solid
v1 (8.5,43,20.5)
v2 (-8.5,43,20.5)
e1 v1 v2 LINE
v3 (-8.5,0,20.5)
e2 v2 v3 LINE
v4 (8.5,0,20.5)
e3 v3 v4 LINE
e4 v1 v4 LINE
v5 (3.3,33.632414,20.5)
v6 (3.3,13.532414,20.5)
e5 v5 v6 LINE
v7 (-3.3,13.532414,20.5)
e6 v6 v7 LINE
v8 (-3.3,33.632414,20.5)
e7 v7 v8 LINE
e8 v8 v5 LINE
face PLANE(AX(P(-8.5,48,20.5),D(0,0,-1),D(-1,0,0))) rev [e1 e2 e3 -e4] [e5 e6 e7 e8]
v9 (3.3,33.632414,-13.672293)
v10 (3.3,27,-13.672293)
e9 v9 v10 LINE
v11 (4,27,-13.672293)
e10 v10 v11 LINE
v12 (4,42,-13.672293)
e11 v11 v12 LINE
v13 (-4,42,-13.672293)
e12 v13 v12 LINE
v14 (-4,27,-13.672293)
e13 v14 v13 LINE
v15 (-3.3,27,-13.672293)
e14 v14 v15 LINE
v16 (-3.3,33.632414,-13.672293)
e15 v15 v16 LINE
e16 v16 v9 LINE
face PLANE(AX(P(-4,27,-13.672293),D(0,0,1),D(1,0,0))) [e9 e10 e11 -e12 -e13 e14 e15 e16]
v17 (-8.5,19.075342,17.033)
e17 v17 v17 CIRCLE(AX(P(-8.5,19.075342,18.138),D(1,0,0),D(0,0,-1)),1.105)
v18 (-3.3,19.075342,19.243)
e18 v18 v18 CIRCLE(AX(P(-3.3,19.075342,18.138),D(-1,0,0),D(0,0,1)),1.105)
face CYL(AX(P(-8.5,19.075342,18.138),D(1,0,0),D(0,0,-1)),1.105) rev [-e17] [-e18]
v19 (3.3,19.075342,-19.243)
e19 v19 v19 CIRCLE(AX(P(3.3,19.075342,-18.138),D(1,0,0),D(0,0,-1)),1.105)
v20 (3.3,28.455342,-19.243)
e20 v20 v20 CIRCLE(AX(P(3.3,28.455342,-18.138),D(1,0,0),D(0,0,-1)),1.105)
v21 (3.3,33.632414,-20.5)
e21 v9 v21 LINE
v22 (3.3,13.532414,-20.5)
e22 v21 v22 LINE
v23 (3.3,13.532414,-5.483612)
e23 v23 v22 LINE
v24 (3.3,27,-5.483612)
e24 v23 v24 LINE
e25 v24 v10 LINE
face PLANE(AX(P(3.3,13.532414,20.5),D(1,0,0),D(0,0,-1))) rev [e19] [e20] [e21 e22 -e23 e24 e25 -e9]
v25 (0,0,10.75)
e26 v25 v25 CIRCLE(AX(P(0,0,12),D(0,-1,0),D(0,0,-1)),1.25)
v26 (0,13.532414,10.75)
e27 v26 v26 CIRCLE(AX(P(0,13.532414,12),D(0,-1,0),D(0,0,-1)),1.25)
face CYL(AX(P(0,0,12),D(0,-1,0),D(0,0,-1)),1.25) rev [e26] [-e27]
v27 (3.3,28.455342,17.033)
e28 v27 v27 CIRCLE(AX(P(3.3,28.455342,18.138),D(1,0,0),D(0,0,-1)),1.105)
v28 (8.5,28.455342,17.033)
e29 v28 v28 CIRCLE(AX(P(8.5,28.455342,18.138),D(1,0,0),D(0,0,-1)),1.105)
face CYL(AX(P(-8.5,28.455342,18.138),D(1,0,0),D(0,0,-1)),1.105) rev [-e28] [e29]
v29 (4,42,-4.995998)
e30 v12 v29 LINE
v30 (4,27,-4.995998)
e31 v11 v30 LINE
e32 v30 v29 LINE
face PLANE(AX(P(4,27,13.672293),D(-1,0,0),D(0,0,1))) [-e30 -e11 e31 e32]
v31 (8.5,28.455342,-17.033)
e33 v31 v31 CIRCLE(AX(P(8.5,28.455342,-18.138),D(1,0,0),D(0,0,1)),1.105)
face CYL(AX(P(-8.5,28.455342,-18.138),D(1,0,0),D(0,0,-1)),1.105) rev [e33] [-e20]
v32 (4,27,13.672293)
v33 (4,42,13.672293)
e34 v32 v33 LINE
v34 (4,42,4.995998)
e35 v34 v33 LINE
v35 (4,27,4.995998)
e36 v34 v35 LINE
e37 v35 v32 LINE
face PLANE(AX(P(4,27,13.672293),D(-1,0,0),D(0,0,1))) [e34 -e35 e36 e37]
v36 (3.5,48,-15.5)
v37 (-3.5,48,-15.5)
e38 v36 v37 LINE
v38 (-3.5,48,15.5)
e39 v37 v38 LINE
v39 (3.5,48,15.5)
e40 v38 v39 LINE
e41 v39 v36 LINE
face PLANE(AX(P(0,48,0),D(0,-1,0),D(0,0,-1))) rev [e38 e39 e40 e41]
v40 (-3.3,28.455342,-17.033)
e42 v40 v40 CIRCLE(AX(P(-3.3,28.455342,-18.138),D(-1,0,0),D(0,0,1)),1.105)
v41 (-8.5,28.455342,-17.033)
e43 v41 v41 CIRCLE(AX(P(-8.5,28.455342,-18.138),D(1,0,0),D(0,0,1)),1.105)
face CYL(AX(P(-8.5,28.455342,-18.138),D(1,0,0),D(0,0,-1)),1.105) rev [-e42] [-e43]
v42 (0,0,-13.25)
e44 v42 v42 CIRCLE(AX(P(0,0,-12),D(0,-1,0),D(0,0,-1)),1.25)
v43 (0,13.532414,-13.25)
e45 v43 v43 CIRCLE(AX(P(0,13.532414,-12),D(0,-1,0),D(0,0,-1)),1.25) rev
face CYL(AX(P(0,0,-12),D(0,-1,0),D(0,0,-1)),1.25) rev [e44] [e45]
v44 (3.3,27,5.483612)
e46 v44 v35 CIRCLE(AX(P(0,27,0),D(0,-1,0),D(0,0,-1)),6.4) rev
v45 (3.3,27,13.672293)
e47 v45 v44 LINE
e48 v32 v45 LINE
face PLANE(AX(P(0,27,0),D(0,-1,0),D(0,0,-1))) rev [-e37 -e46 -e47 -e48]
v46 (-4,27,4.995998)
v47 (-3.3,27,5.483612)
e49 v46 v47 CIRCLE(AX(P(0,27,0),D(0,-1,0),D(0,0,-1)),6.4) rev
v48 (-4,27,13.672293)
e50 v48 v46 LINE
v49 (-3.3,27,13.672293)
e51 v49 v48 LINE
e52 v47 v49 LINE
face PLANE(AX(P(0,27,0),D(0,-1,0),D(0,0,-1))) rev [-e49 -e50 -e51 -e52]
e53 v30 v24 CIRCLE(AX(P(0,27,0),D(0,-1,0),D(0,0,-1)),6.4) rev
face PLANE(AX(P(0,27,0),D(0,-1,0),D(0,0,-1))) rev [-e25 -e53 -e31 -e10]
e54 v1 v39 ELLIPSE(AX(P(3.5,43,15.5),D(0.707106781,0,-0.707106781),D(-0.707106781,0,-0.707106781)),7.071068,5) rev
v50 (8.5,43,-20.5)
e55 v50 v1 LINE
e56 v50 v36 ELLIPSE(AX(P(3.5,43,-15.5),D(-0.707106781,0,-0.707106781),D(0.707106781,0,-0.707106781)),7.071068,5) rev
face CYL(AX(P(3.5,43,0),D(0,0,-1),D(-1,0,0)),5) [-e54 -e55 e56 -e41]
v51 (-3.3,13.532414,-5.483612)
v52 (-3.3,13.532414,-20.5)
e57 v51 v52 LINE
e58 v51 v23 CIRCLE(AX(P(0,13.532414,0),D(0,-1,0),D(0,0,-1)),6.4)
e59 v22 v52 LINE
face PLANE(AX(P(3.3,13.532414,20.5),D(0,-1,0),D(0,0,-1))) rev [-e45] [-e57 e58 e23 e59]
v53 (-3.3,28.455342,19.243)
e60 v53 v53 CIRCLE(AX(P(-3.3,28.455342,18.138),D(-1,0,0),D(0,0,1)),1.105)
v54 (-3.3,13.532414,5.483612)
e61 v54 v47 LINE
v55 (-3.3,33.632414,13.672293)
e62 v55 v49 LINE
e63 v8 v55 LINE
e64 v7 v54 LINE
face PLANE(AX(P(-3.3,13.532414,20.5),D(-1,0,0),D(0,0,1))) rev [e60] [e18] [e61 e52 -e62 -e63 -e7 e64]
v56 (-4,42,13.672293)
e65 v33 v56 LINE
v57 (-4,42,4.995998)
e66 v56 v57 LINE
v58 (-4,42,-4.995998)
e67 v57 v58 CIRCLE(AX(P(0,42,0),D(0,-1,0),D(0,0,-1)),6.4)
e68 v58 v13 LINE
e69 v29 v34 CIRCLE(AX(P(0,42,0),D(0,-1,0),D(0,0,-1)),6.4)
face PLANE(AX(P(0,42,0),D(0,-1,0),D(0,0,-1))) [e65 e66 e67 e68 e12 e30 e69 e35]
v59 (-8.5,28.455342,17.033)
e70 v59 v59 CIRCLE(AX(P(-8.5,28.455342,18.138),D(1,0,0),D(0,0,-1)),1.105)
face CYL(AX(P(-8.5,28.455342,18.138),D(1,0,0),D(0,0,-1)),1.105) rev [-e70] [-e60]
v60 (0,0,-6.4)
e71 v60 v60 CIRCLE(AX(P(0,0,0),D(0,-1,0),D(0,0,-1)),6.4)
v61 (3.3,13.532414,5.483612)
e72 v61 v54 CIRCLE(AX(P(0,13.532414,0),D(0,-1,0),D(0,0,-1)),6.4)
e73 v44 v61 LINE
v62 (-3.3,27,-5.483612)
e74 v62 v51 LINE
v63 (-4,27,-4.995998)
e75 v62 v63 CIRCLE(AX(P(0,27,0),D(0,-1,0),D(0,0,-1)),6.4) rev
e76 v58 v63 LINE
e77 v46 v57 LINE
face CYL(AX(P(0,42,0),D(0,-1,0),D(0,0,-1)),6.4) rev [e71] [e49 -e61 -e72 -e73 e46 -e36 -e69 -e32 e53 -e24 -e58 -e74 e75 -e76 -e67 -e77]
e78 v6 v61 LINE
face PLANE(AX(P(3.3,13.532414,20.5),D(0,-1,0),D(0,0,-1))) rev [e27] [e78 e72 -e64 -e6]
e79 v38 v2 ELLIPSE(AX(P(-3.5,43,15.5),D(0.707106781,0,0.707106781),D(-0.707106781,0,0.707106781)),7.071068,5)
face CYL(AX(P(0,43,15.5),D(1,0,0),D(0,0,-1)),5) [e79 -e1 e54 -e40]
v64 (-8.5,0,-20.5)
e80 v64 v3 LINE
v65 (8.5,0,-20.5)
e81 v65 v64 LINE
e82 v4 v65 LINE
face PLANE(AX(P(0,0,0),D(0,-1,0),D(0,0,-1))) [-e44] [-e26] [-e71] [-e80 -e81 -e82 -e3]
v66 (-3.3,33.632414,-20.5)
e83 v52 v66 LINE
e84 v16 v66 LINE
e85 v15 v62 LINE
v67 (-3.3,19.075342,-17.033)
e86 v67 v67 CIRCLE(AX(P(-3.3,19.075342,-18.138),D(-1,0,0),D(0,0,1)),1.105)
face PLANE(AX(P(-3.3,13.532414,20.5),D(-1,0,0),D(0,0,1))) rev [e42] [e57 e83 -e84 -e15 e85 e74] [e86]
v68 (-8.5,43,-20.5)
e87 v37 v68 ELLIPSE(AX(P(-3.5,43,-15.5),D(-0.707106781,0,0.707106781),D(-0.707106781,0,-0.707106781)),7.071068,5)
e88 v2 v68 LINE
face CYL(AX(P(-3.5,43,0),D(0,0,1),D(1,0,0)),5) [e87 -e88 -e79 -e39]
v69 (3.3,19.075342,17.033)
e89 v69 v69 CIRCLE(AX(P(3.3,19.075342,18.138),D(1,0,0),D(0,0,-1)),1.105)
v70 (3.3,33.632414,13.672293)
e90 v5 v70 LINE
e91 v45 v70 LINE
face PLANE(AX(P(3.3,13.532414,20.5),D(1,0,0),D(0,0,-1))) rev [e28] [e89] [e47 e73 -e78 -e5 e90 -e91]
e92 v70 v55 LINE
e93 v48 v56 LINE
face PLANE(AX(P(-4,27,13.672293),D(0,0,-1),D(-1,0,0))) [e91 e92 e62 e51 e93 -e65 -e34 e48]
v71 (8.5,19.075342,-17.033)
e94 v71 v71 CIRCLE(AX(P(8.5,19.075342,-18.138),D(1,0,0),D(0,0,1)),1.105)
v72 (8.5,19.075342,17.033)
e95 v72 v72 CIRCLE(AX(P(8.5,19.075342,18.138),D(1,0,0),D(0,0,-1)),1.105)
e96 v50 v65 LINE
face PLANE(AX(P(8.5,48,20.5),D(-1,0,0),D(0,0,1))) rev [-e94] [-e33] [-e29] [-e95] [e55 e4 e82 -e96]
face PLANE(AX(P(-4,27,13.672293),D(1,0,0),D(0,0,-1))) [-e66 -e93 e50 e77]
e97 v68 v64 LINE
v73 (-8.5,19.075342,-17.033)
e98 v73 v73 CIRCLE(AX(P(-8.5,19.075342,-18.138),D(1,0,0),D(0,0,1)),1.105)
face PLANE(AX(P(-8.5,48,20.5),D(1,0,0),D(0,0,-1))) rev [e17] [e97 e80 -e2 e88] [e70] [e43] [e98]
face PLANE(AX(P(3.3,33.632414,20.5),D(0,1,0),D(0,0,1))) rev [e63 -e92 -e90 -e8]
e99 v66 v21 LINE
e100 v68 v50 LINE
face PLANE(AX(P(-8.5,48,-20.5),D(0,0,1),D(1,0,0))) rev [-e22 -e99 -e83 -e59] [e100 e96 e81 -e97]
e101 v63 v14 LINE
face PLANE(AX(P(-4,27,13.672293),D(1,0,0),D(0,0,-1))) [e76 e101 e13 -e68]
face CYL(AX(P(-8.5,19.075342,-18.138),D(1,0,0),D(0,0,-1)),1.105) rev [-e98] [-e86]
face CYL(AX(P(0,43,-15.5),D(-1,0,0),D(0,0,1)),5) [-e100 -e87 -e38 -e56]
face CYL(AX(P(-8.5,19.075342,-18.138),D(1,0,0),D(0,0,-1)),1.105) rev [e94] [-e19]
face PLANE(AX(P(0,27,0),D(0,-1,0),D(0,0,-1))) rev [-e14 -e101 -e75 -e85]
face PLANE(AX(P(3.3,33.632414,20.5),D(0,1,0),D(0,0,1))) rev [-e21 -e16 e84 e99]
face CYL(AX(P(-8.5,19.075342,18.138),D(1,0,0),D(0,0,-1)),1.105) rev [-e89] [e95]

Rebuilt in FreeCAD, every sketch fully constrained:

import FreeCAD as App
import Part
import Sketcher
from FreeCAD import Vector


def edges_at(feature, points):
    """Names of the edges that pass closest to the given points."""
    edges = feature.Shape.Edges
    near = lambda p: min(range(len(edges)), key=lambda i: edges[i].distToShape(Part.Vertex(*p))[0])
    return sorted({f"Edge{near(p) + 1}" for p in points})

doc = App.newDocument("Part")
params = doc.addObject("Spreadsheet::Sheet", "Params")
for row, (alias, value) in enumerate([
    ("sketch1_width", "17 mm"),
    ("sketch1_height", "41 mm"),
    ("pad1_length", "48 mm"),
    ("sketch2_width", "6.6 mm"),
    ("sketch2_height", "20.1 mm"),
    ("sketch3_diameter", "2.21 mm"),
    ("sketch4_diameter", "12.8 mm"),
    ("pocket3_length", "42 mm"),
    ("fillet_radius", "5 mm"),
    ("sketch5_width", "8 mm"),
    ("pocket4_length", "15 mm"),
    ("sketch6_diameter", "2.5 mm"),
    ("sketch7_diameter", "2.5 mm"),
], start=1):
    params.set(f"A{row}", alias)
    params.set(f"B{row}", "=" + value)
    params.setAlias(f"B{row}", alias)

body = doc.addObject("PartDesign::Body", "Body")

# Sketch on XZ plane
sketch1 = body.newObject("Sketcher::SketchObject", "Sketch")
sketch1.AttachmentSupport = (doc.getObject("XZ_Plane"), [""])
sketch1.MapMode = "FlatFace"
sketch1.addGeometry(Part.LineSegment(Vector(-8, -20, 0), Vector(-8, 20, 0)), False)
sketch1.addGeometry(Part.LineSegment(Vector(-8, 20, 0), Vector(8, 20, 0)), False)
sketch1.addGeometry(Part.LineSegment(Vector(8, 20, 0), Vector(8, -20, 0)), False)
sketch1.addGeometry(Part.LineSegment(Vector(8, -20, 0), Vector(-8, -20, 0)), False)
sketch1.addConstraint(Sketcher.Constraint("Coincident", 0, 2, 1, 1))
sketch1.addConstraint(Sketcher.Constraint("Coincident", 1, 2, 2, 1))
sketch1.addConstraint(Sketcher.Constraint("Coincident", 2, 2, 3, 1))
sketch1.addConstraint(Sketcher.Constraint("Coincident", 3, 2, 0, 1))
sketch1.addConstraint(Sketcher.Constraint("Vertical", 0))
sketch1.addConstraint(Sketcher.Constraint("Horizontal", 1))
sketch1.addConstraint(Sketcher.Constraint("Vertical", 2))
sketch1.addConstraint(Sketcher.Constraint("Horizontal", 3))
sketch1.addConstraint(Sketcher.Constraint("Symmetric", 0, 2, 2, 2, -1, 1))
sketch1.addConstraint(Sketcher.Constraint("DistanceX", 1, 1, 1, 2, 17.0))
sketch1.addConstraint(Sketcher.Constraint("DistanceY", 0, 1, 0, 2, 41.0))
sketch1.setExpression("Constraints[9]", "Params.sketch1_width")
sketch1.setExpression("Constraints[10]", "Params.sketch1_height")
pad1 = body.newObject("PartDesign::Pad", "Pad")
pad1.Profile = sketch1
pad1.setExpression("Length", "Params.pad1_length")
pad1.Reversed = True

# Sketch on XY plane
sketch2 = body.newObject("Sketcher::SketchObject", "Sketch001")
sketch2.AttachmentSupport = (doc.getObject("XY_Plane"), [""])
sketch2.MapMode = "FlatFace"
sketch2.AttachmentOffset = App.Placement(Vector(0, 0, -20.5), App.Rotation())
sketch2.addGeometry(Part.LineSegment(Vector(3, 34, 0), Vector(3, 14, 0)), False)
sketch2.addGeometry(Part.LineSegment(Vector(3, 14, 0), Vector(-3, 14, 0)), False)
sketch2.addGeometry(Part.LineSegment(Vector(-3, 14, 0), Vector(-3, 34, 0)), False)
sketch2.addGeometry(Part.LineSegment(Vector(-3, 34, 0), Vector(3, 34, 0)), False)
sketch2.addConstraint(Sketcher.Constraint("Coincident", 0, 2, 1, 1))
sketch2.addConstraint(Sketcher.Constraint("Coincident", 1, 2, 2, 1))
sketch2.addConstraint(Sketcher.Constraint("Coincident", 2, 2, 3, 1))
sketch2.addConstraint(Sketcher.Constraint("Coincident", 3, 2, 0, 1))
sketch2.addConstraint(Sketcher.Constraint("Vertical", 0))
sketch2.addConstraint(Sketcher.Constraint("Horizontal", 1))
sketch2.addConstraint(Sketcher.Constraint("Vertical", 2))
sketch2.addConstraint(Sketcher.Constraint("Horizontal", 3))
sketch2.addConstraint(Sketcher.Constraint("DistanceX", 1, 2, 1, 1, 6.6))
sketch2.addConstraint(Sketcher.Constraint("DistanceY", 0, 2, 0, 1, 20.1))
sketch2.addConstraint(Sketcher.Constraint("DistanceX", -1, 1, 0, 2, 3.3))
sketch2.addConstraint(Sketcher.Constraint("DistanceY", -1, 1, 0, 2, 13.532414))
sketch2.setExpression("Constraints[8]", "Params.sketch2_width")
sketch2.setExpression("Constraints[9]", "Params.sketch2_height")
pocket1 = body.newObject("PartDesign::Pocket", "Pocket")
pocket1.Profile = sketch2
pocket1.Type = "ThroughAll"
pocket1.Reversed = True

# Sketch on YZ plane
sketch3 = body.newObject("Sketcher::SketchObject", "Sketch002")
sketch3.AttachmentSupport = (doc.getObject("YZ_Plane"), [""])
sketch3.MapMode = "FlatFace"
sketch3.AttachmentOffset = App.Placement(Vector(0, 0, 8.5), App.Rotation())
sketch3.addGeometry(Part.Circle(Vector(19.1, 18.1, 0), Vector(0, 0, 1), 1.1), False)
sketch3.addGeometry(Part.Circle(Vector(28.5, 18.1, 0), Vector(0, 0, 1), 1.1), False)
sketch3.addGeometry(Part.Circle(Vector(28.5, -18.1, 0), Vector(0, 0, 1), 1.1), False)
sketch3.addGeometry(Part.Circle(Vector(19.1, -18.1, 0), Vector(0, 0, 1), 1.1), False)
sketch3.addConstraint(Sketcher.Constraint("Equal", 0, 1))
sketch3.addConstraint(Sketcher.Constraint("Equal", 1, 2))
sketch3.addConstraint(Sketcher.Constraint("Equal", 2, 3))
sketch3.addConstraint(Sketcher.Constraint("Symmetric", 1, 3, 2, 3, -1))
sketch3.addConstraint(Sketcher.Constraint("Symmetric", 0, 3, 3, 3, -1))
sketch3.addConstraint(Sketcher.Constraint("Horizontal", 0, 3, 1, 3))
sketch3.addConstraint(Sketcher.Constraint("Diameter", 0, 2.21))
sketch3.addConstraint(Sketcher.Constraint("DistanceX", 0, 3, 1, 3, 9.38))
sketch3.addConstraint(Sketcher.Constraint("DistanceY", -1, 1, 0, 3, 18.138))
sketch3.addConstraint(Sketcher.Constraint("DistanceX", -1, 1, 0, 3, 19.075342))
sketch3.setExpression("Constraints[6]", "Params.sketch3_diameter")
pocket2 = body.newObject("PartDesign::Pocket", "Pocket001")
pocket2.Profile = sketch3
pocket2.Type = "ThroughAll"

# Sketch on XZ plane
sketch4 = body.newObject("Sketcher::SketchObject", "Sketch003")
sketch4.AttachmentSupport = (doc.getObject("XZ_Plane"), [""])
sketch4.MapMode = "FlatFace"
sketch4.addGeometry(Part.Circle(Vector(0, 0, 0), Vector(0, 0, 1), 6), False)
sketch4.addConstraint(Sketcher.Constraint("Coincident", 0, 3, -1, 1))
sketch4.addConstraint(Sketcher.Constraint("Diameter", 0, 12.8))
sketch4.setExpression("Constraints[1]", "Params.sketch4_diameter")
pocket3 = body.newObject("PartDesign::Pocket", "Pocket002")
pocket3.Profile = sketch4
pocket3.setExpression("Length", "Params.pocket3_length")
doc.recompute()

fillet = body.newObject("PartDesign::Fillet", "Fillet")
fillet.Base = (pocket3, edges_at(pocket3, [
    (-8.5, 48, 0),
    (0, 48, 20.5),
    (8.5, 48, 0),
    (0, 48, -20.5),
]))
fillet.setExpression("Radius", "Params.fillet_radius")

# Sketch on XZ plane
sketch5 = body.newObject("Sketcher::SketchObject", "Sketch004")
sketch5.AttachmentSupport = (doc.getObject("XZ_Plane"), [""])
sketch5.MapMode = "FlatFace"
sketch5.AttachmentOffset = App.Placement(Vector(0, 0, -42), App.Rotation())
sketch5.addGeometry(Part.LineSegment(Vector(-4, 14, 0), Vector(-4, -14, 0)), False)
sketch5.addGeometry(Part.LineSegment(Vector(-4, -14, 0), Vector(4, -14, 0)), False)
sketch5.addGeometry(Part.LineSegment(Vector(4, -14, 0), Vector(4, 14, 0)), False)
sketch5.addGeometry(Part.LineSegment(Vector(4, 14, 0), Vector(-4, 14, 0)), False)
sketch5.addConstraint(Sketcher.Constraint("Coincident", 0, 2, 1, 1))
sketch5.addConstraint(Sketcher.Constraint("Coincident", 1, 2, 2, 1))
sketch5.addConstraint(Sketcher.Constraint("Coincident", 2, 2, 3, 1))
sketch5.addConstraint(Sketcher.Constraint("Coincident", 3, 2, 0, 1))
sketch5.addConstraint(Sketcher.Constraint("Vertical", 0))
sketch5.addConstraint(Sketcher.Constraint("Horizontal", 1))
sketch5.addConstraint(Sketcher.Constraint("Vertical", 2))
sketch5.addConstraint(Sketcher.Constraint("Horizontal", 3))
sketch5.addConstraint(Sketcher.Constraint("Symmetric", 0, 2, 2, 2, -1, 1))
sketch5.addConstraint(Sketcher.Constraint("DistanceX", 1, 1, 1, 2, 8.0))
sketch5.addConstraint(Sketcher.Constraint("DistanceY", 0, 2, 0, 1, 27.344586))
sketch5.setExpression("Constraints[9]", "Params.sketch5_width")
pocket4 = body.newObject("PartDesign::Pocket", "Pocket003")
pocket4.Profile = sketch5
pocket4.setExpression("Length", "Params.pocket4_length")
pocket4.Reversed = True

# Sketch on XZ plane
sketch6 = body.newObject("Sketcher::SketchObject", "Sketch005")
sketch6.AttachmentSupport = (doc.getObject("XZ_Plane"), [""])
sketch6.MapMode = "FlatFace"
sketch6.addGeometry(Part.Circle(Vector(0, -12, 0), Vector(0, 0, 1), 1.2), False)
sketch6.addConstraint(Sketcher.Constraint("PointOnObject", 0, 3, -2))
sketch6.addConstraint(Sketcher.Constraint("Diameter", 0, 2.5))
sketch6.addConstraint(Sketcher.Constraint("DistanceY", 0, 3, -1, 1, 12.0))
sketch6.setExpression("Constraints[1]", "Params.sketch6_diameter")
pocket5 = body.newObject("PartDesign::Pocket", "Pocket004")
pocket5.Profile = sketch6
pocket5.Type = "UpToFirst"

# Sketch on XZ plane
sketch7 = body.newObject("Sketcher::SketchObject", "Sketch006")
sketch7.AttachmentSupport = (doc.getObject("XZ_Plane"), [""])
sketch7.MapMode = "FlatFace"
sketch7.addGeometry(Part.Circle(Vector(0, 12, 0), Vector(0, 0, 1), 1.2), False)
sketch7.addConstraint(Sketcher.Constraint("PointOnObject", 0, 3, -2))
sketch7.addConstraint(Sketcher.Constraint("Diameter", 0, 2.5))
sketch7.addConstraint(Sketcher.Constraint("DistanceY", -1, 1, 0, 3, 12.0))
sketch7.setExpression("Constraints[1]", "Params.sketch7_diameter")
pocket6 = body.newObject("PartDesign::Pocket", "Pocket005")
pocket6.Profile = sketch7
pocket6.Type = "UpToFirst"

doc.recompute()
